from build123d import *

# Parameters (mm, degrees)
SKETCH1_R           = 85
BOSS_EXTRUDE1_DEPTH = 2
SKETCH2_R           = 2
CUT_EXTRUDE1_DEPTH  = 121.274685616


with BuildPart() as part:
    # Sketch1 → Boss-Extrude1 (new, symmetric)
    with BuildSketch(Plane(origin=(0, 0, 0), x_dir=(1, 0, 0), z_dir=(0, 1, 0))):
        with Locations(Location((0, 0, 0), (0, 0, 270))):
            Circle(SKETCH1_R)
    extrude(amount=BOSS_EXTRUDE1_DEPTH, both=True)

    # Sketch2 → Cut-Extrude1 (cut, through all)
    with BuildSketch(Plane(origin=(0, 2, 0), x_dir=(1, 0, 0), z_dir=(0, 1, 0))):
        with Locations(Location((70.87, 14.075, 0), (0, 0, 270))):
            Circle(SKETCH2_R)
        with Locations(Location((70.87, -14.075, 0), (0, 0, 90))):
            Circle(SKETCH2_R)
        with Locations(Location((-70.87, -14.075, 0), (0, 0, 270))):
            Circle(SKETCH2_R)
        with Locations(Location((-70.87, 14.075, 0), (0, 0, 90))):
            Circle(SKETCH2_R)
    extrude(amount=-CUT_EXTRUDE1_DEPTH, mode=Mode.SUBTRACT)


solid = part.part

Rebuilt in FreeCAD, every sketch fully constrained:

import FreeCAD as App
import Part
import Sketcher
from FreeCAD import Vector

doc = App.newDocument("Part")
params = doc.addObject("Spreadsheet::Sheet", "Params")
for row, (alias, value) in enumerate([
    ("sketch1_diameter", "170 mm"),
    ("pad1_length", "4 mm"),
    ("sketch2_diameter", "4 mm"),
], start=1):
    params.set(f"A{row}", alias)
    params.set(f"B{row}", "=" + value)
    params.setAlias(f"B{row}", alias)

body = doc.addObject("PartDesign::Body", "Body")

# Sketch on XZ plane
sketch1 = body.newObject("Sketcher::SketchObject", "Sketch")
sketch1.AttachmentSupport = (doc.getObject("XZ_Plane"), [""])
sketch1.MapMode = "FlatFace"
sketch1.addGeometry(Part.Circle(Vector(0, 0, 0), Vector(0, 0, 1), 85), False)
sketch1.addConstraint([
    Sketcher.Constraint("Coincident", 0, 3, -1, 1),
    Sketcher.Constraint("Diameter", 0, 170.0),
])
sketch1.setExpression("Constraints[1]", "Params.sketch1_diameter")
pad1 = body.newObject("PartDesign::Pad", "Pad")
pad1.Profile = sketch1
pad1.setExpression("Length", "Params.pad1_length")
pad1.Midplane = True

# Sketch on XZ plane
sketch2 = body.newObject("Sketcher::SketchObject", "Sketch001")
sketch2.AttachmentSupport = (doc.getObject("XZ_Plane"), [""])
sketch2.MapMode = "FlatFace"
sketch2.AttachmentOffset = App.Placement(Vector(0, 0, -2), App.Rotation())
sketch2.addGeometry([
    Part.Circle(Vector(70.9, -14.1, 0), Vector(0, 0, 1), 2),
    Part.Circle(Vector(70.9, 14.1, 0), Vector(0, 0, 1), 2),
    Part.Circle(Vector(-70.9, 14.1, 0), Vector(0, 0, 1), 2),
    Part.Circle(Vector(-70.9, -14.1, 0), Vector(0, 0, 1), 2),
], False)
sketch2.addConstraint([
    Sketcher.Constraint("Equal", 0, 1),
    Sketcher.Constraint("Equal", 1, 2),
    Sketcher.Constraint("Equal", 2, 3),
    Sketcher.Constraint("Symmetric", 0, 3, 2, 3, -1, 1),
    Sketcher.Constraint("Symmetric", 1, 3, 3, 3, -1, 1),
    Sketcher.Constraint("Symmetric", 1, 3, 2, 3, -2),
    Sketcher.Constraint("Diameter", 0, 4.0),
    Sketcher.Constraint("DistanceX", -1, 1, 0, 3, 70.87),
    Sketcher.Constraint("DistanceY", 0, 3, 1, 3, 28.15),
])
sketch2.setExpression("Constraints[6]", "Params.sketch2_diameter")
pocket1 = body.newObject("PartDesign::Pocket", "Pocket")
pocket1.Profile = sketch2
pocket1.Type = "ThroughAll"
pocket1.Reversed = True

doc.recompute()
